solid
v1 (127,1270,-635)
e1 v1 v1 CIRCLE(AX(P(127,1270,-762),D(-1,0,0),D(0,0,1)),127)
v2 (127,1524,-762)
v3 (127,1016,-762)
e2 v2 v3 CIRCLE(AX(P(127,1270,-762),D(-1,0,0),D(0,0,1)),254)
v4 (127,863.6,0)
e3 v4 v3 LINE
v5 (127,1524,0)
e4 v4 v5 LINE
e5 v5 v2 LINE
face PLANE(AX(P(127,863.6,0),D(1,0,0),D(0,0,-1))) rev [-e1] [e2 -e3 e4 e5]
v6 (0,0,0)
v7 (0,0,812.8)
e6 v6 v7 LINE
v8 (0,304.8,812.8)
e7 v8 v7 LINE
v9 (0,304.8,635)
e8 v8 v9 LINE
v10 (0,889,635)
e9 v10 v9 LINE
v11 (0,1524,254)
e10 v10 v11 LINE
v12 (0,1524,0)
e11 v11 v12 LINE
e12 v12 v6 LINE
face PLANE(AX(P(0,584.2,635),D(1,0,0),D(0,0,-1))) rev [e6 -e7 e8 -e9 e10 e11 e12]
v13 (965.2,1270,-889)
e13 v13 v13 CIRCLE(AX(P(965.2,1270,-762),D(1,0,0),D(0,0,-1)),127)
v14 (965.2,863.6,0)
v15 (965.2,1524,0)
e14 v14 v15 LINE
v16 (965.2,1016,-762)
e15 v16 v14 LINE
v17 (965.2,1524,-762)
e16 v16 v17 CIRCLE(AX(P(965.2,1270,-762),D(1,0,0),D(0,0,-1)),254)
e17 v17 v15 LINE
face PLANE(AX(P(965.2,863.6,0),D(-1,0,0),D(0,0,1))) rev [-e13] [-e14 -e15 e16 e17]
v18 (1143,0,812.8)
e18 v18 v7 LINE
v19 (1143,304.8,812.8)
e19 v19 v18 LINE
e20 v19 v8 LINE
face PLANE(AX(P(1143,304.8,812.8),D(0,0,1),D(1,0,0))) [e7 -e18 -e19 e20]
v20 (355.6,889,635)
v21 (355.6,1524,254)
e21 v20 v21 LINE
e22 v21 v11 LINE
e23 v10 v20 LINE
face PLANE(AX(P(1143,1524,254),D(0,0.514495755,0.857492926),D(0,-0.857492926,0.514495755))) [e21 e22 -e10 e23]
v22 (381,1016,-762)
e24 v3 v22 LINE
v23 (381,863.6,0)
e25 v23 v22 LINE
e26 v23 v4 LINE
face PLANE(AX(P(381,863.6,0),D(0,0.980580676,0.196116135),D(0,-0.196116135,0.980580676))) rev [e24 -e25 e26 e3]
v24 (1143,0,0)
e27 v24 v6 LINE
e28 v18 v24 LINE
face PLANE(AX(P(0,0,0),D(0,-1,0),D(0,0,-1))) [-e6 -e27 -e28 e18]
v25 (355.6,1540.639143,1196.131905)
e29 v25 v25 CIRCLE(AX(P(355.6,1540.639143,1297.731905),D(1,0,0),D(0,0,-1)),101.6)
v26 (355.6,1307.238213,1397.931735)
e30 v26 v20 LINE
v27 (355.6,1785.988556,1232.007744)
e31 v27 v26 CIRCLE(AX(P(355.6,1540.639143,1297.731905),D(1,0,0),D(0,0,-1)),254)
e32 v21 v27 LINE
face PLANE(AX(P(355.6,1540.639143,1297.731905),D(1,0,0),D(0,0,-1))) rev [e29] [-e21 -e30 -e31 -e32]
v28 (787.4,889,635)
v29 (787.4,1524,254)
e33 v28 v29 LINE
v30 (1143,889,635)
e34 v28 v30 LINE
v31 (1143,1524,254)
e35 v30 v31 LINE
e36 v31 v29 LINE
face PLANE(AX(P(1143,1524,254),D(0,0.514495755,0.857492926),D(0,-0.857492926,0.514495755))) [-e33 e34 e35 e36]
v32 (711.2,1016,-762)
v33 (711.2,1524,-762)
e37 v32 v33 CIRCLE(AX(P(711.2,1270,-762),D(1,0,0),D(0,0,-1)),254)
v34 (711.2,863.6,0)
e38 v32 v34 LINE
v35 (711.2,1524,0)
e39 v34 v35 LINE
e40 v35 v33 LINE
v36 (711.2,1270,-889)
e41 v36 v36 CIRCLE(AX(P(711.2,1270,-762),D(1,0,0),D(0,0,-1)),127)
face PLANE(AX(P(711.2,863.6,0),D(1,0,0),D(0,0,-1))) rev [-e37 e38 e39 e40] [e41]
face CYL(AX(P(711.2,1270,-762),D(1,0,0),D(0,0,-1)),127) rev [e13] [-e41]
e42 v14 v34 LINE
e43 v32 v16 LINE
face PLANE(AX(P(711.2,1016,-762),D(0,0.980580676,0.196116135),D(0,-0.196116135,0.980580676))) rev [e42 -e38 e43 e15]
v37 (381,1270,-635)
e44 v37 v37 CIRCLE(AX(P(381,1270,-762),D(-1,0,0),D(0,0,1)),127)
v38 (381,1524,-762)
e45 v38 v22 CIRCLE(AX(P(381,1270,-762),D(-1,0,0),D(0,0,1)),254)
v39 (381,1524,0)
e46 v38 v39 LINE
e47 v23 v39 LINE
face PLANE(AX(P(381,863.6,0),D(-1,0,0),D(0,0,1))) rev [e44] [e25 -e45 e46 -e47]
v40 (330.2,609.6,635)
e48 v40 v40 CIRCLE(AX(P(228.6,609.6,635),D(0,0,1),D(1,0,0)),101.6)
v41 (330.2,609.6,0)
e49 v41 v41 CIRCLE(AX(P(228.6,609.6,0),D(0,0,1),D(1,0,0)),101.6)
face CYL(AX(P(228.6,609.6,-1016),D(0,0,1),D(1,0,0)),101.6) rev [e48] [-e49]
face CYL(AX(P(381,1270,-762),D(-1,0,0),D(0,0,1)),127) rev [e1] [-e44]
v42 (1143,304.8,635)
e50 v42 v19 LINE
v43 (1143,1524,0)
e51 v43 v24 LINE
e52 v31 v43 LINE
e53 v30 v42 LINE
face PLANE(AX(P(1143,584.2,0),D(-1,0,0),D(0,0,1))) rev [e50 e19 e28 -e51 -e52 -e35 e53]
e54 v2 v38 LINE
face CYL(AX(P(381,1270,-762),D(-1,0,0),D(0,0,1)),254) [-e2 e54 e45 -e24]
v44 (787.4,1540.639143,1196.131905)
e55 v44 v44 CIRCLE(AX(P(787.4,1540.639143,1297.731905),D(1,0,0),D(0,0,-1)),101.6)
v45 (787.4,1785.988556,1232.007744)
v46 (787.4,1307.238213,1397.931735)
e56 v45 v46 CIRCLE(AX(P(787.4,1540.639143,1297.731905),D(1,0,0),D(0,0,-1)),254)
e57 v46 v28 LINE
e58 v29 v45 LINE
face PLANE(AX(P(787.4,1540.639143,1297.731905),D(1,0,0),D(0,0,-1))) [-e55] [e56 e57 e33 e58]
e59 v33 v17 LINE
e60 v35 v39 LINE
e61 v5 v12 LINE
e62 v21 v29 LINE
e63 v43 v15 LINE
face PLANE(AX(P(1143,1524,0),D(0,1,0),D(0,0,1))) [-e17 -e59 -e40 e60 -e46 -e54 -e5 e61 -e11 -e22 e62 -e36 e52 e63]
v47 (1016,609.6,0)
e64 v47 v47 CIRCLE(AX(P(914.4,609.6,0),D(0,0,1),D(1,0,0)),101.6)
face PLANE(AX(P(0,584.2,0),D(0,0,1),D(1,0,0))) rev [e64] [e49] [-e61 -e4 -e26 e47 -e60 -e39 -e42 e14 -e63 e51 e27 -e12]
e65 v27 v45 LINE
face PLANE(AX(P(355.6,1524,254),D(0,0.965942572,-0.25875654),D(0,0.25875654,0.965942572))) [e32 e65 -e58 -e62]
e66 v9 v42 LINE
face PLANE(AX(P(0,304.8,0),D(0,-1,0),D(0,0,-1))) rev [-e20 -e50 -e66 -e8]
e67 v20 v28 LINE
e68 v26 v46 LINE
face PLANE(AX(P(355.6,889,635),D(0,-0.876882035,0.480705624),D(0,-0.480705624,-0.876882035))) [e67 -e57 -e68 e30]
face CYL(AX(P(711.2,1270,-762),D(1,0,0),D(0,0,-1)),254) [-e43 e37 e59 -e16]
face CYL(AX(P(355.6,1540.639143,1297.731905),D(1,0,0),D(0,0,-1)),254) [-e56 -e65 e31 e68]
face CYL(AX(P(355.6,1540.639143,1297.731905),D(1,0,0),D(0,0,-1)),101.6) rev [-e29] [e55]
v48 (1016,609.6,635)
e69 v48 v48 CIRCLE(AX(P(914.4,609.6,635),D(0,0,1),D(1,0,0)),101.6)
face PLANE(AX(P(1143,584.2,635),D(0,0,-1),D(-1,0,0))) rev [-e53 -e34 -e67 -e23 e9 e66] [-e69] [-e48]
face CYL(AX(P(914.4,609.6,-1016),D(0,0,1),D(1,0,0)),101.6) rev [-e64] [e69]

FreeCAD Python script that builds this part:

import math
import FreeCAD as App
import Part
import Sketcher
Q = App.Units.Quantity


def add_polygon(sketch, points):
    """Adds a closed chain of lines whose ends are joined by coincident constraints."""
    first, n = sketch.GeometryCount, len(points)
    for a, b in zip(points, points[1:] + points[:1]):
        sketch.addGeometry(Part.LineSegment(App.Vector(*a, 0), App.Vector(*b, 0)), False)
    for i in range(n):
        sketch.addConstraint(Sketcher.Constraint("Coincident", first + i, 2, first + (i + 1) % n, 1))

doc = App.newDocument("Part")
body = doc.addObject("PartDesign::Body", "Body")

sketch1 = doc.addObject("Sketcher::SketchObject", "Sketch")
body.addObject(sketch1)
sketch1.AttachmentSupport = (doc.XZ_Plane, [""])
sketch1.MapMode = "FlatFace"
add_polygon(sketch1, [(0, 0), (0, 635), (1143, 635), (1143, 0)])
sketch1.addConstraint([
    Sketcher.Constraint("Vertical", 0),
    Sketcher.Constraint("Horizontal", 1),
    Sketcher.Constraint("Vertical", 2),
    Sketcher.Constraint("Horizontal", 3),
    Sketcher.Constraint("Coincident", 3, 2, -1, 1),
    Sketcher.Constraint("DistanceX", 1, 1, 1, 2, Q("45 in")),
    Sketcher.Constraint("DistanceY", 0, 1, 0, 2, Q("25 in")),
])
pad1 = doc.addObject("PartDesign::Pad", "Pad")
body.addObject(pad1)
pad1.Profile = sketch1
pad1.Length = Q("23 in")
pad1.Reversed = True

sketch2 = doc.addObject("Sketcher::SketchObject", "Sketch001")
body.addObject(sketch2)
sketch2.AttachmentSupport = (doc.XZ_Plane, [""])
sketch2.MapMode = "FlatFace"
add_polygon(sketch2, [(0, 813), (0, 635), (1143, 635), (1143, 813)])
sketch2.addConstraint([
    Sketcher.Constraint("Vertical", 0),
    Sketcher.Constraint("Horizontal", 1),
    Sketcher.Constraint("Vertical", 2),
    Sketcher.Constraint("Horizontal", 3),
    Sketcher.Constraint("PointOnObject", 0, 2, -2),
    Sketcher.Constraint("DistanceX", 1, 1, 1, 2, Q("45 in")),
    Sketcher.Constraint("DistanceY", 0, 2, 0, 1, Q("7 in")),
    Sketcher.Constraint("DistanceY", -1, 1, 0, 2, Q("25 in")),
])
pad2 = doc.addObject("PartDesign::Pad", "Pad001")
body.addObject(pad2)
pad2.Profile = sketch2
pad2.Length = Q("12 in")
pad2.Reversed = True

sketch3 = doc.addObject("Sketcher::SketchObject", "Sketch002")
body.addObject(sketch3)
sketch3.AttachmentSupport = (doc.XZ_Plane, [""])
sketch3.MapMode = "FlatFace"
sketch3.AttachmentOffset = App.Placement(App.Vector(0, 0, -23 * 25.4), App.Rotation())
add_polygon(sketch3, [(0, 0), (0, 635), (1143, 635), (1143, 0)])
sketch3.addConstraint([
    Sketcher.Constraint("Vertical", 0),
    Sketcher.Constraint("Horizontal", 1),
    Sketcher.Constraint("Vertical", 2),
    Sketcher.Constraint("Horizontal", 3),
    Sketcher.Constraint("Coincident", 3, 2, -1, 1),
    Sketcher.Constraint("DistanceX", 1, 1, 1, 2, Q("45 in")),
    Sketcher.Constraint("DistanceY", 0, 1, 0, 2, Q("25 in")),
])
pad3 = doc.addObject("PartDesign::Pad", "Pad002")
body.addObject(pad3)
pad3.Profile = sketch3
pad3.Length = Q("12 in")
pad3.Reversed = True

sketch4 = doc.addObject("Sketcher::SketchObject", "Sketch003")
body.addObject(sketch4)
sketch4.AttachmentSupport = (doc.YZ_Plane, [""])
sketch4.MapMode = "FlatFace"
add_polygon(sketch4, [(1524, 0), (0, 0), (0, 254), (1524, 254)])
sketch4.addConstraint([
    Sketcher.Constraint("Horizontal", 0),
    Sketcher.Constraint("Vertical", 1),
    Sketcher.Constraint("Horizontal", 2),
    Sketcher.Constraint("Vertical", 3),
    Sketcher.Constraint("Coincident", 0, 2, -1, 1),
    Sketcher.Constraint("DistanceX", 0, 2, 0, 1, Q("60 in")),
    Sketcher.Constraint("DistanceY", 1, 1, 1, 2, Q("10 in")),
])
pad4 = doc.addObject("PartDesign::Pad", "Pad003")
body.addObject(pad4)
pad4.Profile = sketch4
pad4.Length = Q("45 in")

sketch5 = doc.addObject("Sketcher::SketchObject", "Sketch004")
body.addObject(sketch5)
sketch5.AttachmentSupport = (doc.YZ_Plane, [""])
sketch5.MapMode = "FlatFace"
add_polygon(sketch5, [(889, 635), (1524, 254), (889, 254)])
sketch5.addConstraint([
    Sketcher.Constraint("Horizontal", 1),
    Sketcher.Constraint("Vertical", 2),
    Sketcher.Constraint("DistanceX", 1, 2, 1, 1, Q("25 in")),
    Sketcher.Constraint("DistanceY", 2, 1, 2, 2, Q("15 in")),
    Sketcher.Constraint("DistanceX", -1, 1, 0, 2, Q("60 in")),
    Sketcher.Constraint("DistanceY", -1, 1, 0, 2, Q("10 in")),
])
pad5 = doc.addObject("PartDesign::Pad", "Pad004")
body.addObject(pad5)
pad5.Profile = sketch5
pad5.Length = Q("45 in")

sketch6 = doc.addObject("Sketcher::SketchObject", "Sketch005")
body.addObject(sketch6)
sketch6.AttachmentSupport = (doc.XZ_Plane, [""])
sketch6.MapMode = "FlatFace"
sketch6.AttachmentOffset = App.Placement(App.Vector(0, 0, -60 * 25.4), App.Rotation())
add_polygon(sketch6, [(127, -762), (127, 0), (381, 0), (381, -762)])
sketch6.addConstraint([
    Sketcher.Constraint("Vertical", 0),
    Sketcher.Constraint("Horizontal", 1),
    Sketcher.Constraint("Vertical", 2),
    Sketcher.Constraint("Horizontal", 3),
    Sketcher.Constraint("PointOnObject", 0, 2, -1),
    Sketcher.Constraint("DistanceX", 1, 1, 1, 2, Q("10 in")),
    Sketcher.Constraint("DistanceY", 0, 1, 0, 2, Q("30 in")),
    Sketcher.Constraint("DistanceX", -1, 1, 0, 2, Q("5 in")),
])
pad6 = doc.addObject("PartDesign::Pad", "Pad005")
body.addObject(pad6)
pad6.Profile = sketch6
pad6.Length = Q("26 in")

sketch7 = doc.addObject("Sketcher::SketchObject", "Sketch006")
body.addObject(sketch7)
sketch7.AttachmentSupport = (doc.YZ_Plane, [""])
sketch7.MapMode = "FlatFace"
sketch7.AttachmentOffset = App.Placement(App.Vector(0, 0, 5 * 25.4), App.Rotation())
sketch7.addGeometry([
    Part.ArcOfCircle(Part.Circle(App.Vector(1270, -762, 0), App.Vector(0, 0, 1), 254), math.radians(0), math.radians(90)),
    Part.ArcOfCircle(Part.Circle(App.Vector(1270, -762, 0), App.Vector(0, 0, 1), 254), math.radians(180), math.radians(360)),
    Part.ArcOfCircle(Part.Circle(App.Vector(1270, -762, 0), App.Vector(0, 0, 1), 254), math.radians(90), math.radians(180)),
    Part.ArcOfCircle(Part.Circle(App.Vector(1270, -762, 0), App.Vector(0, 0, 1), 127), math.radians(90), math.radians(180)),
    Part.ArcOfCircle(Part.Circle(App.Vector(1270, -762, 0), App.Vector(0, 0, 1), 127), math.radians(180), math.radians(360)),
    Part.ArcOfCircle(Part.Circle(App.Vector(1270, -762, 0), App.Vector(0, 0, 1), 127), math.radians(0), math.radians(90)),
], False)
sketch7.addConstraint([
    Sketcher.Constraint("Tangent", 0, 1, 1, 2),
    Sketcher.Constraint("Tangent", 1, 1, 2, 2),
    Sketcher.Constraint("Tangent", 2, 1, 0, 2),
    Sketcher.Constraint("Tangent", 3, 2, 4, 1),
    Sketcher.Constraint("Tangent", 4, 2, 5, 1),
    Sketcher.Constraint("Tangent", 5, 2, 3, 1),
    Sketcher.Constraint("Coincident", 3, 3, 0, 3),
    Sketcher.Constraint("Horizontal", 5, 3, 0, 1),
    Sketcher.Constraint("Horizontal", 0, 1, 1, 1),
    Sketcher.Constraint("Horizontal", 1, 1, 3, 2),
    Sketcher.Constraint("Horizontal", 3, 2, 4, 2),
    Sketcher.Constraint("Vertical", 5, 3, 2, 1),
    Sketcher.Constraint("Vertical", 2, 1, 5, 2),
    Sketcher.Constraint("Radius", 0, Q("10 in")),
    Sketcher.Constraint("Radius", 3, Q("5 in")),
    Sketcher.Constraint("DistanceX", -1, 1, 0, 3, Q("50 in")),
    Sketcher.Constraint("DistanceY", 0, 3, -1, 1, Q("30 in")),
])
pad7 = doc.addObject("PartDesign::Pad", "Pad006")
body.addObject(pad7)
pad7.Profile = sketch7
pad7.Length = Q("10 in")

sketch8 = doc.addObject("Sketcher::SketchObject", "Sketch007")
body.addObject(sketch8)
sketch8.AttachmentSupport = (doc.YZ_Plane, [""])
sketch8.MapMode = "FlatFace"
sketch8.AttachmentOffset = App.Placement(App.Vector(0, 0, 5 * 25.4), App.Rotation())
sketch8.addGeometry(Part.Circle(App.Vector(1270, -762, 0), App.Vector(0, 0, 1), 127), False)
sketch8.addConstraint([
    Sketcher.Constraint("Diameter", 0, Q("10 in")),
    Sketcher.Constraint("DistanceX", -1, 1, 0, 3, Q("50 in")),
    Sketcher.Constraint("DistanceY", 0, 3, -1, 1, Q("30 in")),
])
pocket1 = doc.addObject("PartDesign::Pocket", "Pocket")
body.addObject(pocket1)
pocket1.Profile = sketch8
pocket1.Length = Q("10 in")
pocket1.Reversed = True

sketch9 = doc.addObject("Sketcher::SketchObject", "Sketch008")
body.addObject(sketch9)
sketch9.AttachmentSupport = (doc.YZ_Plane, [""])
sketch9.MapMode = "FlatFace"
sketch9.AttachmentOffset = App.Placement(App.Vector(0, 0, 5 * 25.4), App.Rotation())
add_polygon(sketch9, [(864, -762), (864, 0), (1016, -762)])
sketch9.addConstraint([
    Sketcher.Constraint("Vertical", 0),
    Sketcher.Constraint("Horizontal", 2),
    Sketcher.Constraint("PointOnObject", 0, 2, -1),
    Sketcher.Constraint("DistanceX", 2, 2, 2, 1, Q("6 in")),
    Sketcher.Constraint("DistanceY", 0, 1, 0, 2, Q("30 in")),
    Sketcher.Constraint("DistanceX", -1, 1, 0, 2, Q("34 in")),
])
pocket2 = doc.addObject("PartDesign::Pocket", "Pocket001")
body.addObject(pocket2)
pocket2.Profile = sketch9
pocket2.Length = Q("10 in")
pocket2.Reversed = True

sketch10 = doc.addObject("Sketcher::SketchObject", "Sketch009")
body.addObject(sketch10)
sketch10.AttachmentSupport = (doc.XZ_Plane, [""])
sketch10.MapMode = "FlatFace"
sketch10.AttachmentOffset = App.Placement(App.Vector(0, 0, -60 * 25.4), App.Rotation())
add_polygon(sketch10, [(711, -762), (711, 0), (965, 0), (965, -762)])
sketch10.addConstraint([
    Sketcher.Constraint("Vertical", 0),
    Sketcher.Constraint("Horizontal", 1),
    Sketcher.Constraint("Vertical", 2),
    Sketcher.Constraint("Horizontal", 3),
    Sketcher.Constraint("PointOnObject", 0, 2, -1),
    Sketcher.Constraint("DistanceX", 1, 1, 1, 2, Q("10 in")),
    Sketcher.Constraint("DistanceY", 0, 1, 0, 2, Q("30 in")),
    Sketcher.Constraint("DistanceX", -1, 1, 0, 2, Q("28 in")),
])
pad8 = doc.addObject("PartDesign::Pad", "Pad007")
body.addObject(pad8)
pad8.Profile = sketch10
pad8.Length = Q("26 in")

sketch11 = doc.addObject("Sketcher::SketchObject", "Sketch010")
body.addObject(sketch11)
sketch11.AttachmentSupport = (doc.YZ_Plane, [""])
sketch11.MapMode = "FlatFace"
sketch11.AttachmentOffset = App.Placement(App.Vector(0, 0, 38 * 25.4), App.Rotation())
sketch11.addGeometry([
    Part.Circle(App.Vector(1270, -762, 0), App.Vector(0, 0, 1), 254),
    Part.Circle(App.Vector(1270, -762, 0), App.Vector(0, 0, 1), 127),
], False)
sketch11.addConstraint([
    Sketcher.Constraint("Coincident", 1, 3, 0, 3),
    Sketcher.Constraint("Diameter", 0, Q("20 in")),
    Sketcher.Constraint("Diameter", 1, Q("10 in")),
    Sketcher.Constraint("DistanceX", -1, 1, 0, 3, Q("50 in")),
    Sketcher.Constraint("DistanceY", 0, 3, -1, 1, Q("30 in")),
])
pad9 = doc.addObject("PartDesign::Pad", "Pad008")
body.addObject(pad9)
pad9.Profile = sketch11
pad9.Length = Q("10 in")
pad9.Reversed = True

sketch12 = doc.addObject("Sketcher::SketchObject", "Sketch011")
body.addObject(sketch12)
sketch12.AttachmentSupport = (doc.YZ_Plane, [""])
sketch12.MapMode = "FlatFace"
sketch12.AttachmentOffset = App.Placement(App.Vector(0, 0, 38 * 25.4), App.Rotation())
sketch12.addGeometry(Part.Circle(App.Vector(1270, -762, 0), App.Vector(0, 0, 1), 127), False)
add_polygon(sketch12, [(1016, -762), (864, 0), (864, -762)])
sketch12.addConstraint([
    Sketcher.Constraint("Vertical", 2),
    Sketcher.Constraint("Horizontal", 3),
    Sketcher.Constraint("PointOnObject", 1, 2, -1),
    Sketcher.Constraint("Horizontal", 0, 3, 2, 2),
    Sketcher.Constraint("Diameter", 0, Q("10 in")),
    Sketcher.Constraint("DistanceX", 3, 1, 3, 2, Q("6 in")),
    Sketcher.Constraint("DistanceY", 2, 2, 2, 1, Q("30 in")),
    Sketcher.Constraint("DistanceX", -1, 1, 0, 3, Q("50 in")),
    Sketcher.Constraint("DistanceX", -1, 1, 1, 2, Q("34 in")),
])
pocket3 = doc.addObject("PartDesign::Pocket", "Pocket002")
body.addObject(pocket3)
pocket3.Profile = sketch12
pocket3.Length = Q("10 in")

sketch13 = doc.addObject("Sketcher::SketchObject", "Sketch012")
body.addObject(sketch13)
sketch13.AttachmentSupport = (doc.XY_Plane, [""])
sketch13.MapMode = "FlatFace"
sketch13.AttachmentOffset = App.Placement(App.Vector(0, 0, 25 * 25.4), App.Rotation())
sketch13.addGeometry([
    Part.Circle(App.Vector(914, 610, 0), App.Vector(0, 0, 1), 102),
    Part.Circle(App.Vector(229, 610, 0), App.Vector(0, 0, 1), 102),
], False)
sketch13.addConstraint([
    Sketcher.Constraint("Equal", 0, 1),
    Sketcher.Constraint("Horizontal", 0, 3, 1, 3),
    Sketcher.Constraint("Diameter", 0, Q("8 in")),
    Sketcher.Constraint("DistanceX", -1, 1, 0, 3, Q("36 in")),
    Sketcher.Constraint("DistanceY", -1, 1, 0, 3, Q("24 in")),
    Sketcher.Constraint("DistanceX", -1, 1, 1, 3, Q("9 in")),
])
pocket4 = doc.addObject("PartDesign::Pocket", "Pocket003")
body.addObject(pocket4)
pocket4.Profile = sketch13
pocket4.Type = "ThroughAll"

sketch14 = doc.addObject("Sketcher::SketchObject", "Sketch013")
body.addObject(sketch14)
sketch14.AttachmentSupport = (doc.YZ_Plane, [""])
sketch14.MapMode = "FlatFace"
sketch14.AttachmentOffset = App.Placement(App.Vector(0, 0, 22.5 * 25.4), App.Rotation())
sketch14.addGeometry([
    Part.LineSegment(App.Vector(1307, 1398, 0), App.Vector(889, 635, 0)),
    Part.LineSegment(App.Vector(889, 635, 0), App.Vector(1524, 254, 0)),
    Part.LineSegment(App.Vector(1524, 254, 0), App.Vector(1786, 1232, 0)),
    Part.ArcOfCircle(Part.Circle(App.Vector(1541, 1298, 0), App.Vector(0, 0, 1), 254), math.radians(-15), math.radians(157)),
    Part.Circle(App.Vector(1541, 1298, 0), App.Vector(0, 0, 1), 102),
], False)
sketch14.addConstraint([
    Sketcher.Constraint("Coincident", 0, 2, 1, 1),
    Sketcher.Constraint("Coincident", 1, 2, 2, 1),
    Sketcher.Constraint("Tangent", 2, 2, 3, 1),
    Sketcher.Constraint("Coincident", 3, 2, 0, 1),
    Sketcher.Constraint("Coincident", 4, 3, 3, 3),
    Sketcher.Constraint("Diameter", 4, Q("8 in")),
    Sketcher.Constraint("Radius", 3, Q("10 in")),
    Sketcher.Constraint("DistanceX", -1, 1, 0, 2, Q("35 in")),
    Sketcher.Constraint("DistanceY", -1, 1, 0, 2, Q("25 in")),
    Sketcher.Constraint("DistanceX", -1, 1, 1, 2, Q("60 in")),
    Sketcher.Constraint("DistanceY", -1, 1, 1, 2, Q("10 in")),
    Sketcher.Constraint("Distance", 2, Q("1012.490568 mm")),
    Sketcher.Constraint("DistanceY", 2, 2, 3, 3, Q("65.724161 mm")),
    Sketcher.Constraint("DistanceX", 3, 2, 3, 3, Q("233.40093 mm")),
])
pad10 = doc.addObject("PartDesign::Pad", "Pad009")
body.addObject(pad10)
pad10.Profile = sketch14
pad10.Type = "TwoLengths"
pad10.Length = Q("8.5 in")
pad10.Length2 = Q("8.5 in")

doc.recompute()
